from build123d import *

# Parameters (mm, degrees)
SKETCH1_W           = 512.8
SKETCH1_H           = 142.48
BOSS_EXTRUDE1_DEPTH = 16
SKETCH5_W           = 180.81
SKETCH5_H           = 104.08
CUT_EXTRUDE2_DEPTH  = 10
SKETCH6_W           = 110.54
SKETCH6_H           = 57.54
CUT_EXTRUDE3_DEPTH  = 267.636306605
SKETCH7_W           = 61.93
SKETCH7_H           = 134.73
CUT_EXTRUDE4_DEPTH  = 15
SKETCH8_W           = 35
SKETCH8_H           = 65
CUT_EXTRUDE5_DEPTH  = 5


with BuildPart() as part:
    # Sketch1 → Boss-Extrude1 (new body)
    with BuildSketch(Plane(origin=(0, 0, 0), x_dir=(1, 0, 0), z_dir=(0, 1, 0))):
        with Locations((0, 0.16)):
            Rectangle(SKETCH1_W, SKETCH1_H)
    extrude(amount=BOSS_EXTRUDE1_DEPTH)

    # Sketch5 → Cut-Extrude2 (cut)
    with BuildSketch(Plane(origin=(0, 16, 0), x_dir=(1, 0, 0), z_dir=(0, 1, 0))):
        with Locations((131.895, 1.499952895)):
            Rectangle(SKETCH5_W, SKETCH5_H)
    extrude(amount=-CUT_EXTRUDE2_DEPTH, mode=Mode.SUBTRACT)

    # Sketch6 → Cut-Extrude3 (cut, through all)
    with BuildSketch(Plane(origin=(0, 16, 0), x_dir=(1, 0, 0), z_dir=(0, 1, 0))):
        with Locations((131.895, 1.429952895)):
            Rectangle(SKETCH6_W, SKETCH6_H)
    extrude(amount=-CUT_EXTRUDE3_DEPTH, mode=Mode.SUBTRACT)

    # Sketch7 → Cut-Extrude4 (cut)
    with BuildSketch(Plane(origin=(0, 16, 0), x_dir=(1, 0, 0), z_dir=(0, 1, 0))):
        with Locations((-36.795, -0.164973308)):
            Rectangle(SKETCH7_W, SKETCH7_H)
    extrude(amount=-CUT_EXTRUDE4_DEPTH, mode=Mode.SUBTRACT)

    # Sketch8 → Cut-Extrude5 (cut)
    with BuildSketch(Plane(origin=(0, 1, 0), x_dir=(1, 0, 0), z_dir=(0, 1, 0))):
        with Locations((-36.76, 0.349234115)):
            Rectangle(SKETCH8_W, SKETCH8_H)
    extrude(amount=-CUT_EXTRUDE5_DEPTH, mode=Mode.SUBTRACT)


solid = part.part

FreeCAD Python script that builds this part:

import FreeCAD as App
import Part
import Sketcher
from FreeCAD import Vector

doc = App.newDocument("Part")
body = doc.addObject("PartDesign::Body", "Body")

sketch1 = body.newObject("Sketcher::SketchObject", "Sketch")
sketch1.AttachmentSupport = (doc.getObject("XZ_Plane"), [""])
sketch1.MapMode = "FlatFace"
sketch1.addGeometry([
    Part.LineSegment(Vector(-256, -71, 0), Vector(-256, 71, 0)),
    Part.LineSegment(Vector(-256, 71, 0), Vector(256, 71, 0)),
    Part.LineSegment(Vector(256, 71, 0), Vector(256, -71, 0)),
    Part.LineSegment(Vector(256, -71, 0), Vector(-256, -71, 0)),
], False)
sketch1.addConstraint([
    Sketcher.Constraint("Coincident", 0, 2, 1, 1),
    Sketcher.Constraint("Coincident", 1, 2, 2, 1),
    Sketcher.Constraint("Coincident", 2, 2, 3, 1),
    Sketcher.Constraint("Coincident", 3, 2, 0, 1),
    Sketcher.Constraint("Vertical", 0),
    Sketcher.Constraint("Horizontal", 1),
    Sketcher.Constraint("Vertical", 2),
    Sketcher.Constraint("Horizontal", 3),
    Sketcher.Constraint("DistanceX", 1, 1, 1, 2, 512.8),
    Sketcher.Constraint("DistanceY", 0, 1, 0, 2, 142.48),
    Sketcher.Constraint("DistanceX", 0, 2, -1, 1, 256.4),
    Sketcher.Constraint("DistanceY", 2, 2, -1, 1, 71.4),
])
pad1 = body.newObject("PartDesign::Pad", "Pad")
pad1.Profile = sketch1
pad1.Length = 16
pad1.Reversed = True

sketch2 = body.newObject("Sketcher::SketchObject", "Sketch001")
sketch2.AttachmentSupport = (doc.getObject("XZ_Plane"), [""])
sketch2.MapMode = "FlatFace"
sketch2.AttachmentOffset = App.Placement(Vector(0, 0, -16), App.Rotation())
sketch2.addGeometry([
    Part.LineSegment(Vector(41, -54, 0), Vector(41, 51, 0)),
    Part.LineSegment(Vector(41, 51, 0), Vector(222, 51, 0)),
    Part.LineSegment(Vector(222, 51, 0), Vector(222, -54, 0)),
    Part.LineSegment(Vector(222, -54, 0), Vector(41, -54, 0)),
], False)
sketch2.addConstraint([
    Sketcher.Constraint("Coincident", 0, 2, 1, 1),
    Sketcher.Constraint("Coincident", 1, 2, 2, 1),
    Sketcher.Constraint("Coincident", 2, 2, 3, 1),
    Sketcher.Constraint("Coincident", 3, 2, 0, 1),
    Sketcher.Constraint("Vertical", 0),
    Sketcher.Constraint("Horizontal", 1),
    Sketcher.Constraint("Vertical", 2),
    Sketcher.Constraint("Horizontal", 3),
    Sketcher.Constraint("DistanceX", 1, 1, 1, 2, 180.81),
    Sketcher.Constraint("DistanceY", 0, 1, 0, 2, 104.08),
    Sketcher.Constraint("DistanceX", -1, 1, 1, 2, 222.3),
    Sketcher.Constraint("DistanceY", -1, 1, 0, 2, 50.540047),
])
pocket1 = body.newObject("PartDesign::Pocket", "Pocket")
pocket1.Profile = sketch2
pocket1.Length = 10
pocket1.Reversed = True

sketch3 = body.newObject("Sketcher::SketchObject", "Sketch002")
sketch3.AttachmentSupport = (doc.getObject("XZ_Plane"), [""])
sketch3.MapMode = "FlatFace"
sketch3.AttachmentOffset = App.Placement(Vector(0, 0, -16), App.Rotation())
sketch3.addGeometry([
    Part.LineSegment(Vector(77, -30, 0), Vector(77, 27, 0)),
    Part.LineSegment(Vector(77, 27, 0), Vector(187, 27, 0)),
    Part.LineSegment(Vector(187, 27, 0), Vector(187, -30, 0)),
    Part.LineSegment(Vector(187, -30, 0), Vector(77, -30, 0)),
], False)
sketch3.addConstraint([
    Sketcher.Constraint("Coincident", 0, 2, 1, 1),
    Sketcher.Constraint("Coincident", 1, 2, 2, 1),
    Sketcher.Constraint("Coincident", 2, 2, 3, 1),
    Sketcher.Constraint("Coincident", 3, 2, 0, 1),
    Sketcher.Constraint("Vertical", 0),
    Sketcher.Constraint("Horizontal", 1),
    Sketcher.Constraint("Vertical", 2),
    Sketcher.Constraint("Horizontal", 3),
    Sketcher.Constraint("DistanceX", 1, 1, 1, 2, 110.54),
    Sketcher.Constraint("DistanceY", 0, 1, 0, 2, 57.54),
    Sketcher.Constraint("DistanceX", -1, 1, 0, 2, 76.625),
    Sketcher.Constraint("DistanceY", -1, 1, 0, 2, 27.340047),
])
pocket2 = body.newObject("PartDesign::Pocket", "Pocket001")
pocket2.Profile = sketch3
pocket2.Type = "ThroughAll"
pocket2.Reversed = True

sketch4 = body.newObject("Sketcher::SketchObject", "Sketch003")
sketch4.AttachmentSupport = (doc.getObject("XZ_Plane"), [""])
sketch4.MapMode = "FlatFace"
sketch4.AttachmentOffset = App.Placement(Vector(0, 0, -16), App.Rotation())
sketch4.addGeometry([
    Part.LineSegment(Vector(-68, -67, 0), Vector(-68, 68, 0)),
    Part.LineSegment(Vector(-68, 68, 0), Vector(-6, 68, 0)),
    Part.LineSegment(Vector(-6, 68, 0), Vector(-6, -67, 0)),
    Part.LineSegment(Vector(-6, -67, 0), Vector(-68, -67, 0)),
], False)
sketch4.addConstraint([
    Sketcher.Constraint("Coincident", 0, 2, 1, 1),
    Sketcher.Constraint("Coincident", 1, 2, 2, 1),
    Sketcher.Constraint("Coincident", 2, 2, 3, 1),
    Sketcher.Constraint("Coincident", 3, 2, 0, 1),
    Sketcher.Constraint("Vertical", 0),
    Sketcher.Constraint("Horizontal", 1),
    Sketcher.Constraint("Vertical", 2),
    Sketcher.Constraint("Horizontal", 3),
    Sketcher.Constraint("DistanceX", 1, 1, 1, 2, 61.93),
    Sketcher.Constraint("DistanceY", 0, 1, 0, 2, 134.73),
    Sketcher.Constraint("DistanceX", 0, 2, -1, 1, 67.76),
    Sketcher.Constraint("DistanceY", -1, 1, 0, 2, 67.529973),
])
pocket3 = body.newObject("PartDesign::Pocket", "Pocket002")
pocket3.Profile = sketch4
pocket3.Length = 15
pocket3.Reversed = True

sketch5 = body.newObject("Sketcher::SketchObject", "Sketch004")
sketch5.AttachmentSupport = (doc.getObject("XZ_Plane"), [""])
sketch5.MapMode = "FlatFace"
sketch5.AttachmentOffset = App.Placement(Vector(0, 0, -1), App.Rotation())
sketch5.addGeometry([
    Part.LineSegment(Vector(-54, -33, 0), Vector(-54, 32, 0)),
    Part.LineSegment(Vector(-54, 32, 0), Vector(-19, 32, 0)),
    Part.LineSegment(Vector(-19, 32, 0), Vector(-19, -33, 0)),
    Part.LineSegment(Vector(-19, -33, 0), Vector(-54, -33, 0)),
], False)
sketch5.addConstraint([
    Sketcher.Constraint("Coincident", 0, 2, 1, 1),
    Sketcher.Constraint("Coincident", 1, 2, 2, 1),
    Sketcher.Constraint("Coincident", 2, 2, 3, 1),
    Sketcher.Constraint("Coincident", 3, 2, 0, 1),
    Sketcher.Constraint("Vertical", 0),
    Sketcher.Constraint("Horizontal", 1),
    Sketcher.Constraint("Vertical", 2),
    Sketcher.Constraint("Horizontal", 3),
    Sketcher.Constraint("DistanceX", 1, 1, 1, 2, 35.0),
    Sketcher.Constraint("DistanceY", 0, 1, 0, 2, 65.0),
    Sketcher.Constraint("DistanceX", 0, 2, -1, 1, 54.26),
    Sketcher.Constraint("DistanceY", -1, 1, 0, 2, 32.150766),
])
pocket4 = body.newObject("PartDesign::Pocket", "Pocket003")
pocket4.Profile = sketch5
pocket4.Length = 5
pocket4.Reversed = True

doc.recompute()
